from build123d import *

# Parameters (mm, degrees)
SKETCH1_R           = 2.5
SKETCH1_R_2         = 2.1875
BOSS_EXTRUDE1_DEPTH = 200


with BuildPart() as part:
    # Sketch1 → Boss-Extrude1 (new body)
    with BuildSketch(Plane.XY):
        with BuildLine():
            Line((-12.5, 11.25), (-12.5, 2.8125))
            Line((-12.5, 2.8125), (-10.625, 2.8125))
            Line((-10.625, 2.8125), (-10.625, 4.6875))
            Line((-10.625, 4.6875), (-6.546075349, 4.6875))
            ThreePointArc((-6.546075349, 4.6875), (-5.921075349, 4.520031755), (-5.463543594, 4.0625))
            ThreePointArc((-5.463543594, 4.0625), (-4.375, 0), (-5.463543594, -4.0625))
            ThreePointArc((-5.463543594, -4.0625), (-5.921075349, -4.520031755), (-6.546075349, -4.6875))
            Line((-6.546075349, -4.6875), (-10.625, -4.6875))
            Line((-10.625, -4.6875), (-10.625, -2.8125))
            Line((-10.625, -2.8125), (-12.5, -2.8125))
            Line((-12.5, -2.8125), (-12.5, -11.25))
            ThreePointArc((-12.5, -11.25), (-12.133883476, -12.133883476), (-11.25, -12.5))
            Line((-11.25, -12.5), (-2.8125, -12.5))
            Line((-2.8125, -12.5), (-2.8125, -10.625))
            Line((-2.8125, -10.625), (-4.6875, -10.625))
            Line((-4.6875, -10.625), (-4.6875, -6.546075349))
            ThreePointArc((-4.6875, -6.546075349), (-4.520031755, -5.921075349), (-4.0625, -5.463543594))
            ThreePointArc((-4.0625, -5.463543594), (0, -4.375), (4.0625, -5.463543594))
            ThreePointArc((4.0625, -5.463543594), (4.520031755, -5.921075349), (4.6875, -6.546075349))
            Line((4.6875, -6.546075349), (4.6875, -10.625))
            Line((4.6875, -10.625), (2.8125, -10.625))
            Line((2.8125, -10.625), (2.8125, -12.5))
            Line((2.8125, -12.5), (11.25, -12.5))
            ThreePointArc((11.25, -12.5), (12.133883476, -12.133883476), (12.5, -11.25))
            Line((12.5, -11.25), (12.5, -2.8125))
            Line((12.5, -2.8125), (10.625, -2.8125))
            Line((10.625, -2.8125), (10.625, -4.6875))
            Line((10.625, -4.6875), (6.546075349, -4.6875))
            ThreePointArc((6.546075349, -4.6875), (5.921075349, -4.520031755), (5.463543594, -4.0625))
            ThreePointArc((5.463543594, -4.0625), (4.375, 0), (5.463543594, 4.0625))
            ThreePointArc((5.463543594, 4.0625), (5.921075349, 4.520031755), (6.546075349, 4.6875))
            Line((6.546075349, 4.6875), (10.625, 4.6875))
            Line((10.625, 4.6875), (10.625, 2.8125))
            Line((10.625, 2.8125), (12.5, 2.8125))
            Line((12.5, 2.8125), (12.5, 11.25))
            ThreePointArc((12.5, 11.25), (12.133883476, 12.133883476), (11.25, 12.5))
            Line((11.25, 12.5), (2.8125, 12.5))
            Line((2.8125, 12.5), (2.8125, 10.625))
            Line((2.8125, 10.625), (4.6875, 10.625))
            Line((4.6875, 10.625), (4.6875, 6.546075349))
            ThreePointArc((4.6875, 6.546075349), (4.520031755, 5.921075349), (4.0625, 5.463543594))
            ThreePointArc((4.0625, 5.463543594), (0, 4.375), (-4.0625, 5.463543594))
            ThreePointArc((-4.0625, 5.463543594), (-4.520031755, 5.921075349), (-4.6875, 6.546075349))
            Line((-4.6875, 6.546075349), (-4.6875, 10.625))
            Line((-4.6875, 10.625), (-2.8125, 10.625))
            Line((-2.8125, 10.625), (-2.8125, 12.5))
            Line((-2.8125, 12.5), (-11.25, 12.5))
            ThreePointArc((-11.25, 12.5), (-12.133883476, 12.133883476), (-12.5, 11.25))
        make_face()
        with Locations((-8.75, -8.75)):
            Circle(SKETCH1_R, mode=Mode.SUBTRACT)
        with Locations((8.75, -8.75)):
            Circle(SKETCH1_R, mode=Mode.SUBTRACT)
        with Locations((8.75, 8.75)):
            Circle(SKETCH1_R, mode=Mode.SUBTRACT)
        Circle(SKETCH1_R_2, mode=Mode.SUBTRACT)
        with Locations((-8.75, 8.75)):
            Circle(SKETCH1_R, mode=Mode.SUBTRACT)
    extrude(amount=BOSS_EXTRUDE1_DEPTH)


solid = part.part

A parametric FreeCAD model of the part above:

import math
import FreeCAD as App
import Part
import Sketcher

V = App.Vector

doc = App.newDocument("Part")
body = doc.addObject("PartDesign::Body", "Body")

# Sketch on XY plane
sketch1 = doc.addObject("Sketcher::SketchObject", "Sketch")
body.addObject(sketch1)
sketch1.AttachmentSupport = (doc.XY_Plane, [""])
sketch1.MapMode = "FlatFace"
sketch1.addGeometry(Part.LineSegment(V(-12.5, 11.2, 0), V(-12.5, 2.8, 0)), False)
sketch1.addGeometry(Part.LineSegment(V(-12.5, 2.8, 0), V(-10.6, 2.8, 0)), False)
sketch1.addGeometry(Part.LineSegment(V(-10.6, 2.8, 0), V(-10.6, 4.7, 0)), False)
sketch1.addGeometry(Part.LineSegment(V(-10.6, 4.7, 0), V(-6.5, 4.7, 0)), False)
sketch1.addGeometry(Part.ArcOfCircle(Part.Circle(V(-6.5, 3.4, 0), V(0, 0, 1), 1.2), math.radians(30), math.radians(90)), False)
sketch1.addGeometry(Part.ArcOfCircle(Part.Circle(V(-12.5, 0, 0), V(0, 0, 1), 8.1), math.radians(-30), math.radians(30)), False)
sketch1.addGeometry(Part.ArcOfCircle(Part.Circle(V(-6.5, -3.4, 0), V(0, 0, 1), 1.2), math.radians(-90), math.radians(-30)), False)
sketch1.addGeometry(Part.LineSegment(V(-6.5, -4.7, 0), V(-10.6, -4.7, 0)), False)
sketch1.addGeometry(Part.LineSegment(V(-10.6, -4.7, 0), V(-10.6, -2.8, 0)), False)
sketch1.addGeometry(Part.LineSegment(V(-10.6, -2.8, 0), V(-12.5, -2.8, 0)), False)
sketch1.addGeometry(Part.LineSegment(V(-12.5, -2.8, 0), V(-12.5, -11.2, 0)), False)
sketch1.addGeometry(Part.ArcOfCircle(Part.Circle(V(-11.2, -11.2, 0), V(0, 0, 1), 1.3), math.radians(-180), math.radians(-90)), False)
sketch1.addGeometry(Part.LineSegment(V(-11.2, -12.5, 0), V(-2.8, -12.5, 0)), False)
sketch1.addGeometry(Part.LineSegment(V(-2.8, -12.5, 0), V(-2.8, -10.6, 0)), False)
sketch1.addGeometry(Part.LineSegment(V(-2.8, -10.6, 0), V(-4.7, -10.6, 0)), False)
sketch1.addGeometry(Part.LineSegment(V(-4.7, -10.6, 0), V(-4.7, -6.5, 0)), False)
sketch1.addGeometry(Part.ArcOfCircle(Part.Circle(V(-3.4, -6.5, 0), V(0, 0, 1), 1.2), math.radians(120), math.radians(180)), False)
sketch1.addGeometry(Part.ArcOfCircle(Part.Circle(V(0, -12.5, 0), V(0, 0, 1), 8.1), math.radians(60), math.radians(120)), False)
sketch1.addGeometry(Part.ArcOfCircle(Part.Circle(V(3.4, -6.5, 0), V(0, 0, 1), 1.2), math.radians(0), math.radians(60)), False)
sketch1.addGeometry(Part.LineSegment(V(4.7, -6.5, 0), V(4.7, -10.6, 0)), False)
sketch1.addGeometry(Part.LineSegment(V(4.7, -10.6, 0), V(2.8, -10.6, 0)), False)
sketch1.addGeometry(Part.LineSegment(V(2.8, -10.6, 0), V(2.8, -12.5, 0)), False)
sketch1.addGeometry(Part.LineSegment(V(2.8, -12.5, 0), V(11.2, -12.5, 0)), False)
sketch1.addGeometry(Part.ArcOfCircle(Part.Circle(V(11.2, -11.2, 0), V(0, 0, 1), 1.3), math.radians(-90), math.radians(0)), False)
sketch1.addGeometry(Part.LineSegment(V(12.5, -11.2, 0), V(12.5, -2.8, 0)), False)
sketch1.addGeometry(Part.LineSegment(V(12.5, -2.8, 0), V(10.6, -2.8, 0)), False)
sketch1.addGeometry(Part.LineSegment(V(10.6, -2.8, 0), V(10.6, -4.7, 0)), False)
sketch1.addGeometry(Part.LineSegment(V(10.6, -4.7, 0), V(6.5, -4.7, 0)), False)
sketch1.addGeometry(Part.ArcOfCircle(Part.Circle(V(6.5, -3.4, 0), V(0, 0, 1), 1.2), math.radians(-150), math.radians(-90)), False)
sketch1.addGeometry(Part.ArcOfCircle(Part.Circle(V(12.5, 0, 0), V(0, 0, 1), 8.1), math.radians(150), math.radians(210)), False)
sketch1.addGeometry(Part.ArcOfCircle(Part.Circle(V(6.5, 3.4, 0), V(0, 0, 1), 1.2), math.radians(90), math.radians(150)), False)
sketch1.addGeometry(Part.LineSegment(V(6.5, 4.7, 0), V(10.6, 4.7, 0)), False)
sketch1.addGeometry(Part.LineSegment(V(10.6, 4.7, 0), V(10.6, 2.8, 0)), False)
sketch1.addGeometry(Part.LineSegment(V(10.6, 2.8, 0), V(12.5, 2.8, 0)), False)
sketch1.addGeometry(Part.LineSegment(V(12.5, 2.8, 0), V(12.5, 11.2, 0)), False)
sketch1.addGeometry(Part.ArcOfCircle(Part.Circle(V(11.2, 11.2, 0), V(0, 0, 1), 1.3), math.radians(0), math.radians(90)), False)
sketch1.addGeometry(Part.LineSegment(V(11.2, 12.5, 0), V(2.8, 12.5, 0)), False)
sketch1.addGeometry(Part.LineSegment(V(2.8, 12.5, 0), V(2.8, 10.6, 0)), False)
sketch1.addGeometry(Part.LineSegment(V(2.8, 10.6, 0), V(4.7, 10.6, 0)), False)
sketch1.addGeometry(Part.LineSegment(V(4.7, 10.6, 0), V(4.7, 6.5, 0)), False)
sketch1.addGeometry(Part.ArcOfCircle(Part.Circle(V(3.4, 6.5, 0), V(0, 0, 1), 1.2), math.radians(-60), math.radians(0)), False)
sketch1.addGeometry(Part.ArcOfCircle(Part.Circle(V(0, 12.5, 0), V(0, 0, 1), 8.1), math.radians(-120), math.radians(-60)), False)
sketch1.addGeometry(Part.ArcOfCircle(Part.Circle(V(-3.4, 6.5, 0), V(0, 0, 1), 1.2), math.radians(180), math.radians(240)), False)
sketch1.addGeometry(Part.LineSegment(V(-4.7, 6.5, 0), V(-4.7, 10.6, 0)), False)
sketch1.addGeometry(Part.LineSegment(V(-4.7, 10.6, 0), V(-2.8, 10.6, 0)), False)
sketch1.addGeometry(Part.LineSegment(V(-2.8, 10.6, 0), V(-2.8, 12.5, 0)), False)
sketch1.addGeometry(Part.LineSegment(V(-2.8, 12.5, 0), V(-11.2, 12.5, 0)), False)
sketch1.addGeometry(Part.ArcOfCircle(Part.Circle(V(-11.2, 11.2, 0), V(0, 0, 1), 1.3), math.radians(90), math.radians(180)), False)
sketch1.addGeometry(Part.Circle(V(-8.8, -8.8, 0), V(0, 0, 1), 2.5), False)
sketch1.addGeometry(Part.Circle(V(8.8, -8.8, 0), V(0, 0, 1), 2.5), False)
sketch1.addGeometry(Part.Circle(V(-8.8, 8.8, 0), V(0, 0, 1), 2.5), False)
sketch1.addGeometry(Part.Circle(V(0, 0, 0), V(0, 0, 1), 2.2), False)
sketch1.addGeometry(Part.Circle(V(8.8, 8.8, 0), V(0, 0, 1), 2.5), False)
sketch1.addConstraint(Sketcher.Constraint("Coincident", 0, 2, 1, 1))
sketch1.addConstraint(Sketcher.Constraint("Coincident", 1, 2, 2, 1))
sketch1.addConstraint(Sketcher.Constraint("Coincident", 2, 2, 3, 1))
sketch1.addConstraint(Sketcher.Constraint("Tangent", 3, 2, 4, 2))
sketch1.addConstraint(Sketcher.Constraint("Tangent", 4, 1, 5, 2))
sketch1.addConstraint(Sketcher.Constraint("Tangent", 5, 1, 6, 2))
sketch1.addConstraint(Sketcher.Constraint("Tangent", 6, 1, 7, 1))
sketch1.addConstraint(Sketcher.Constraint("Coincident", 7, 2, 8, 1))
sketch1.addConstraint(Sketcher.Constraint("Coincident", 8, 2, 9, 1))
sketch1.addConstraint(Sketcher.Constraint("Coincident", 9, 2, 10, 1))
sketch1.addConstraint(Sketcher.Constraint("Tangent", 10, 2, 11, 1))
sketch1.addConstraint(Sketcher.Constraint("Tangent", 11, 2, 12, 1))
sketch1.addConstraint(Sketcher.Constraint("Coincident", 12, 2, 13, 1))
sketch1.addConstraint(Sketcher.Constraint("Coincident", 13, 2, 14, 1))
sketch1.addConstraint(Sketcher.Constraint("Coincident", 14, 2, 15, 1))
sketch1.addConstraint(Sketcher.Constraint("Tangent", 15, 2, 16, 2))
sketch1.addConstraint(Sketcher.Constraint("Tangent", 16, 1, 17, 2))
sketch1.addConstraint(Sketcher.Constraint("Tangent", 17, 1, 18, 2))
sketch1.addConstraint(Sketcher.Constraint("Tangent", 18, 1, 19, 1))
sketch1.addConstraint(Sketcher.Constraint("Coincident", 19, 2, 20, 1))
sketch1.addConstraint(Sketcher.Constraint("Coincident", 20, 2, 21, 1))
sketch1.addConstraint(Sketcher.Constraint("Coincident", 21, 2, 22, 1))
sketch1.addConstraint(Sketcher.Constraint("Tangent", 22, 2, 23, 1))
sketch1.addConstraint(Sketcher.Constraint("Tangent", 23, 2, 24, 1))
sketch1.addConstraint(Sketcher.Constraint("Coincident", 24, 2, 25, 1))
sketch1.addConstraint(Sketcher.Constraint("Coincident", 25, 2, 26, 1))
sketch1.addConstraint(Sketcher.Constraint("Coincident", 26, 2, 27, 1))
sketch1.addConstraint(Sketcher.Constraint("Tangent", 27, 2, 28, 2))
sketch1.addConstraint(Sketcher.Constraint("Tangent", 28, 1, 29, 2))
sketch1.addConstraint(Sketcher.Constraint("Tangent", 29, 1, 30, 2))
sketch1.addConstraint(Sketcher.Constraint("Tangent", 30, 1, 31, 1))
sketch1.addConstraint(Sketcher.Constraint("Coincident", 31, 2, 32, 1))
sketch1.addConstraint(Sketcher.Constraint("Coincident", 32, 2, 33, 1))
sketch1.addConstraint(Sketcher.Constraint("Coincident", 33, 2, 34, 1))
sketch1.addConstraint(Sketcher.Constraint("Tangent", 34, 2, 35, 1))
sketch1.addConstraint(Sketcher.Constraint("Tangent", 35, 2, 36, 1))
sketch1.addConstraint(Sketcher.Constraint("Coincident", 36, 2, 37, 1))
sketch1.addConstraint(Sketcher.Constraint("Coincident", 37, 2, 38, 1))
sketch1.addConstraint(Sketcher.Constraint("Coincident", 38, 2, 39, 1))
sketch1.addConstraint(Sketcher.Constraint("Tangent", 39, 2, 40, 2))
sketch1.addConstraint(Sketcher.Constraint("Tangent", 40, 1, 41, 2))
sketch1.addConstraint(Sketcher.Constraint("Tangent", 41, 1, 42, 2))
sketch1.addConstraint(Sketcher.Constraint("Tangent", 42, 1, 43, 1))
sketch1.addConstraint(Sketcher.Constraint("Coincident", 43, 2, 44, 1))
sketch1.addConstraint(Sketcher.Constraint("Coincident", 44, 2, 45, 1))
sketch1.addConstraint(Sketcher.Constraint("Coincident", 45, 2, 46, 1))
sketch1.addConstraint(Sketcher.Constraint("Tangent", 46, 2, 47, 1))
sketch1.addConstraint(Sketcher.Constraint("Tangent", 47, 2, 0, 1))
sketch1.addConstraint(Sketcher.Constraint("Vertical", 0))
sketch1.addConstraint(Sketcher.Constraint("Horizontal", 1))
sketch1.addConstraint(Sketcher.Constraint("Vertical", 2))
sketch1.addConstraint(Sketcher.Constraint("Horizontal", 3))
sketch1.addConstraint(Sketcher.Constraint("Horizontal", 7))
sketch1.addConstraint(Sketcher.Constraint("Vertical", 8))
sketch1.addConstraint(Sketcher.Constraint("Horizontal", 9))
sketch1.addConstraint(Sketcher.Constraint("Vertical", 10))
sketch1.addConstraint(Sketcher.Constraint("Horizontal", 12))
sketch1.addConstraint(Sketcher.Constraint("Vertical", 13))
sketch1.addConstraint(Sketcher.Constraint("Horizontal", 14))
sketch1.addConstraint(Sketcher.Constraint("Vertical", 15))
sketch1.addConstraint(Sketcher.Constraint("Vertical", 19))
sketch1.addConstraint(Sketcher.Constraint("Horizontal", 20))
sketch1.addConstraint(Sketcher.Constraint("Vertical", 21))
sketch1.addConstraint(Sketcher.Constraint("Horizontal", 22))
sketch1.addConstraint(Sketcher.Constraint("Vertical", 24))
sketch1.addConstraint(Sketcher.Constraint("Horizontal", 25))
sketch1.addConstraint(Sketcher.Constraint("Vertical", 26))
sketch1.addConstraint(Sketcher.Constraint("Horizontal", 27))
sketch1.addConstraint(Sketcher.Constraint("Horizontal", 31))
sketch1.addConstraint(Sketcher.Constraint("Vertical", 32))
sketch1.addConstraint(Sketcher.Constraint("Horizontal", 33))
sketch1.addConstraint(Sketcher.Constraint("Vertical", 34))
sketch1.addConstraint(Sketcher.Constraint("Horizontal", 36))
sketch1.addConstraint(Sketcher.Constraint("Vertical", 37))
sketch1.addConstraint(Sketcher.Constraint("Horizontal", 38))
sketch1.addConstraint(Sketcher.Constraint("Vertical", 39))
sketch1.addConstraint(Sketcher.Constraint("Vertical", 43))
sketch1.addConstraint(Sketcher.Constraint("Horizontal", 44))
sketch1.addConstraint(Sketcher.Constraint("Vertical", 45))
sketch1.addConstraint(Sketcher.Constraint("Horizontal", 46))
sketch1.addConstraint(Sketcher.Constraint("Coincident", 51, 3, -1, 1))
sketch1.addConstraint(Sketcher.Constraint("Equal", 4, 6))
sketch1.addConstraint(Sketcher.Constraint("Equal", 6, 11))
sketch1.addConstraint(Sketcher.Constraint("Equal", 11, 16))
sketch1.addConstraint(Sketcher.Constraint("Equal", 5, 17))
sketch1.addConstraint(Sketcher.Constraint("Equal", 16, 18))
sketch1.addConstraint(Sketcher.Constraint("Equal", 18, 23))
sketch1.addConstraint(Sketcher.Constraint("Equal", 23, 28))
sketch1.addConstraint(Sketcher.Constraint("Equal", 17, 29))
sketch1.addConstraint(Sketcher.Constraint("Equal", 28, 30))
sketch1.addConstraint(Sketcher.Constraint("Equal", 30, 35))
sketch1.addConstraint(Sketcher.Constraint("Equal", 35, 40))
sketch1.addConstraint(Sketcher.Constraint("Equal", 29, 41))
sketch1.addConstraint(Sketcher.Constraint("Equal", 40, 42))
sketch1.addConstraint(Sketcher.Constraint("Equal", 42, 47))
sketch1.addConstraint(Sketcher.Constraint("Equal", 48, 49))
sketch1.addConstraint(Sketcher.Constraint("Equal", 49, 50))
sketch1.addConstraint(Sketcher.Constraint("Equal", 50, 52))
sketch1.addConstraint(Sketcher.Constraint("Symmetric", 4, 3, 28, 3, -1, 1))
sketch1.addConstraint(Sketcher.Constraint("Symmetric", 6, 3, 30, 3, -1, 1))
sketch1.addConstraint(Sketcher.Constraint("Symmetric", 11, 3, 35, 3, -1, 1))
sketch1.addConstraint(Sketcher.Constraint("Symmetric", 16, 3, 40, 3, -1, 1))
sketch1.addConstraint(Sketcher.Constraint("Symmetric", 18, 3, 42, 3, -1, 1))
sketch1.addConstraint(Sketcher.Constraint("Symmetric", 23, 3, 47, 3, -1, 1))
sketch1.addConstraint(Sketcher.Constraint("Symmetric", 49, 3, 50, 3, -1, 1))
sketch1.addConstraint(Sketcher.Constraint("Symmetric", 48, 3, 52, 3, -1, 1))
sketch1.addConstraint(Sketcher.Constraint("Symmetric", 1, 2, 25, 2, -1, 1))
sketch1.addConstraint(Sketcher.Constraint("Symmetric", 8, 2, 32, 2, -1, 1))
sketch1.addConstraint(Sketcher.Constraint("Symmetric", 13, 2, 37, 2, -1, 1))
sketch1.addConstraint(Sketcher.Constraint("Symmetric", 20, 2, 44, 2, -1, 1))
sketch1.addConstraint(Sketcher.Constraint("Symmetric", 16, 3, 18, 3, -2))
sketch1.addConstraint(Sketcher.Constraint("Symmetric", 11, 3, 23, 3, -2))
sketch1.addConstraint(Sketcher.Constraint("Symmetric", 6, 3, 28, 3, -2))
sketch1.addConstraint(Sketcher.Constraint("Symmetric", 48, 3, 49, 3, -2))
sketch1.addConstraint(Sketcher.Constraint("Symmetric", 13, 2, 20, 2, -2))
sketch1.addConstraint(Sketcher.Constraint("Symmetric", 8, 2, 25, 2, -2))
sketch1.addConstraint(Sketcher.Constraint("Horizontal", 17, 3, 11, 2))
sketch1.addConstraint(Sketcher.Constraint("Vertical", 5, 3, 0, 2))
sketch1.addConstraint(Sketcher.Constraint("Equal", 9, 14))
sketch1.addConstraint(Sketcher.Constraint("Equal", 46, 0))
sketch1.addConstraint(Sketcher.Constraint("Equal", 44, 2))
sketch1.addConstraint(Sketcher.Constraint("Equal", 8, 13))
sketch1.addConstraint(Sketcher.Constraint("Equal", 31, 15))
sketch1.addConstraint(Sketcher.Constraint("Diameter", 48, 5.0))
sketch1.addConstraint(Sketcher.Constraint("Radius", 4, 1.25))
sketch1.addConstraint(Sketcher.Constraint("Diameter", 51, 4.375))
sketch1.addConstraint(Sketcher.Constraint("Radius", 5, 8.125))
sketch1.addConstraint(Sketcher.Constraint("DistanceX", 5, 3, -1, 1, 12.5))
sketch1.addConstraint(Sketcher.Constraint("DistanceX", 1, 1, 1, 2, 1.875))
sketch1.addConstraint(Sketcher.Constraint("DistanceX", 48, 3, -1, 1, 8.75))
sketch1.addConstraint(Sketcher.Constraint("DistanceY", 48, 3, -1, 1, 8.75))
sketch1.addConstraint(Sketcher.Constraint("DistanceX", 12, 1, 12, 2, 8.4375))
pad1 = doc.addObject("PartDesign::Pad", "Pad")
body.addObject(pad1)
pad1.Profile = sketch1
pad1.Length = 200

doc.recompute()
